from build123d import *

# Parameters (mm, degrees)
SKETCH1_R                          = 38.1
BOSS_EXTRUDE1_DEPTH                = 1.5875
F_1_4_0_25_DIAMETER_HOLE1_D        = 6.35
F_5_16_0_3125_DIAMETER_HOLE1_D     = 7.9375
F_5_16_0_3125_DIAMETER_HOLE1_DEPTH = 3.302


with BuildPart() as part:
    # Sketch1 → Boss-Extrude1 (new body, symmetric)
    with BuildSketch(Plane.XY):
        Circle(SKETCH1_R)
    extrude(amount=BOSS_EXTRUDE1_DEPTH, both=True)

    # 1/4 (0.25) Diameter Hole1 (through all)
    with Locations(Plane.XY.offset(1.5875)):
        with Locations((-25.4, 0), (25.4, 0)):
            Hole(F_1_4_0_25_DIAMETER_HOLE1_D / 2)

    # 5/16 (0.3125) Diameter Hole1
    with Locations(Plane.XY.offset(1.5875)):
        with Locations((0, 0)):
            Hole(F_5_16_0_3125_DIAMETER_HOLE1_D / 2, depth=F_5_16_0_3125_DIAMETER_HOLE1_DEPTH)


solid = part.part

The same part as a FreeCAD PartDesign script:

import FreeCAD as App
import Part
import Sketcher
from FreeCAD import Vector
Q = App.Units.Quantity

doc = App.newDocument("Part")
body = doc.addObject("PartDesign::Body", "Body")

# Sketch on XY plane
sketch1 = body.newObject("Sketcher::SketchObject", "Sketch")
sketch1.AttachmentSupport = (doc.getObject("XY_Plane"), [""])
sketch1.MapMode = "FlatFace"
sketch1.addGeometry(Part.Circle(Vector(0, 0, 0), Vector(0, 0, 1), 38), False)
sketch1.addConstraint([
    Sketcher.Constraint("Coincident", 0, 3, -1, 1),
    Sketcher.Constraint("Diameter", 0, Q("3 in")),
])
pad1 = body.newObject("PartDesign::Pad", "Pad")
pad1.Profile = sketch1
pad1.Length = Q("0.125 in")
pad1.Midplane = True

# Sketch on XY plane
sketch2 = body.newObject("Sketcher::SketchObject", "Sketch001")
sketch2.AttachmentSupport = (doc.getObject("XY_Plane"), [""])
sketch2.MapMode = "FlatFace"
sketch2.AttachmentOffset = App.Placement(Vector(0, 0, 0.0625 * 25.4), App.Rotation())
sketch2.addGeometry([
    Part.Circle(Vector(-25.4, 0, 0), Vector(0, 0, 1), 3.2),
    Part.Circle(Vector(25.4, 0, 0), Vector(0, 0, 1), 3.2),
], False)
sketch2.addConstraint([
    Sketcher.Constraint("Equal", 0, 1),
    Sketcher.Constraint("Symmetric", 0, 3, 1, 3, -1, 1),
    Sketcher.Constraint("PointOnObject", 0, 3, -1),
    Sketcher.Constraint("Diameter", 0, Q("0.25 in")),
    Sketcher.Constraint("DistanceX", 0, 3, -1, 1, Q("1 in")),
])
doc.recompute()
hole = body.newObject("PartDesign::Hole", "Hole")
hole.Profile = sketch2
hole.ThreadType = "None"
hole.Diameter = Q("0.25 in")
hole.DepthType = "ThroughAll"

# Sketch on XY plane
sketch3 = body.newObject("Sketcher::SketchObject", "Sketch002")
sketch3.AttachmentSupport = (doc.getObject("XY_Plane"), [""])
sketch3.MapMode = "FlatFace"
sketch3.AttachmentOffset = App.Placement(Vector(0, 0, 0.0625 * 25.4), App.Rotation())
sketch3.addGeometry(Part.Circle(Vector(0, 0, 0), Vector(0, 0, 1), 4), False)
sketch3.addConstraint([
    Sketcher.Constraint("Coincident", 0, 3, -1, 1),
    Sketcher.Constraint("Diameter", 0, Q("0.3125 in")),
])
doc.recompute()
hole2 = body.newObject("PartDesign::Hole", "Hole001")
hole2.Profile = sketch3
hole2.ThreadType = "None"
hole2.Diameter = Q("0.3125 in")
hole2.DepthType = "Dimension"
hole2.Depth = Q("0.13 in")
hole2.DrillPoint = "Flat"

doc.recompute()
